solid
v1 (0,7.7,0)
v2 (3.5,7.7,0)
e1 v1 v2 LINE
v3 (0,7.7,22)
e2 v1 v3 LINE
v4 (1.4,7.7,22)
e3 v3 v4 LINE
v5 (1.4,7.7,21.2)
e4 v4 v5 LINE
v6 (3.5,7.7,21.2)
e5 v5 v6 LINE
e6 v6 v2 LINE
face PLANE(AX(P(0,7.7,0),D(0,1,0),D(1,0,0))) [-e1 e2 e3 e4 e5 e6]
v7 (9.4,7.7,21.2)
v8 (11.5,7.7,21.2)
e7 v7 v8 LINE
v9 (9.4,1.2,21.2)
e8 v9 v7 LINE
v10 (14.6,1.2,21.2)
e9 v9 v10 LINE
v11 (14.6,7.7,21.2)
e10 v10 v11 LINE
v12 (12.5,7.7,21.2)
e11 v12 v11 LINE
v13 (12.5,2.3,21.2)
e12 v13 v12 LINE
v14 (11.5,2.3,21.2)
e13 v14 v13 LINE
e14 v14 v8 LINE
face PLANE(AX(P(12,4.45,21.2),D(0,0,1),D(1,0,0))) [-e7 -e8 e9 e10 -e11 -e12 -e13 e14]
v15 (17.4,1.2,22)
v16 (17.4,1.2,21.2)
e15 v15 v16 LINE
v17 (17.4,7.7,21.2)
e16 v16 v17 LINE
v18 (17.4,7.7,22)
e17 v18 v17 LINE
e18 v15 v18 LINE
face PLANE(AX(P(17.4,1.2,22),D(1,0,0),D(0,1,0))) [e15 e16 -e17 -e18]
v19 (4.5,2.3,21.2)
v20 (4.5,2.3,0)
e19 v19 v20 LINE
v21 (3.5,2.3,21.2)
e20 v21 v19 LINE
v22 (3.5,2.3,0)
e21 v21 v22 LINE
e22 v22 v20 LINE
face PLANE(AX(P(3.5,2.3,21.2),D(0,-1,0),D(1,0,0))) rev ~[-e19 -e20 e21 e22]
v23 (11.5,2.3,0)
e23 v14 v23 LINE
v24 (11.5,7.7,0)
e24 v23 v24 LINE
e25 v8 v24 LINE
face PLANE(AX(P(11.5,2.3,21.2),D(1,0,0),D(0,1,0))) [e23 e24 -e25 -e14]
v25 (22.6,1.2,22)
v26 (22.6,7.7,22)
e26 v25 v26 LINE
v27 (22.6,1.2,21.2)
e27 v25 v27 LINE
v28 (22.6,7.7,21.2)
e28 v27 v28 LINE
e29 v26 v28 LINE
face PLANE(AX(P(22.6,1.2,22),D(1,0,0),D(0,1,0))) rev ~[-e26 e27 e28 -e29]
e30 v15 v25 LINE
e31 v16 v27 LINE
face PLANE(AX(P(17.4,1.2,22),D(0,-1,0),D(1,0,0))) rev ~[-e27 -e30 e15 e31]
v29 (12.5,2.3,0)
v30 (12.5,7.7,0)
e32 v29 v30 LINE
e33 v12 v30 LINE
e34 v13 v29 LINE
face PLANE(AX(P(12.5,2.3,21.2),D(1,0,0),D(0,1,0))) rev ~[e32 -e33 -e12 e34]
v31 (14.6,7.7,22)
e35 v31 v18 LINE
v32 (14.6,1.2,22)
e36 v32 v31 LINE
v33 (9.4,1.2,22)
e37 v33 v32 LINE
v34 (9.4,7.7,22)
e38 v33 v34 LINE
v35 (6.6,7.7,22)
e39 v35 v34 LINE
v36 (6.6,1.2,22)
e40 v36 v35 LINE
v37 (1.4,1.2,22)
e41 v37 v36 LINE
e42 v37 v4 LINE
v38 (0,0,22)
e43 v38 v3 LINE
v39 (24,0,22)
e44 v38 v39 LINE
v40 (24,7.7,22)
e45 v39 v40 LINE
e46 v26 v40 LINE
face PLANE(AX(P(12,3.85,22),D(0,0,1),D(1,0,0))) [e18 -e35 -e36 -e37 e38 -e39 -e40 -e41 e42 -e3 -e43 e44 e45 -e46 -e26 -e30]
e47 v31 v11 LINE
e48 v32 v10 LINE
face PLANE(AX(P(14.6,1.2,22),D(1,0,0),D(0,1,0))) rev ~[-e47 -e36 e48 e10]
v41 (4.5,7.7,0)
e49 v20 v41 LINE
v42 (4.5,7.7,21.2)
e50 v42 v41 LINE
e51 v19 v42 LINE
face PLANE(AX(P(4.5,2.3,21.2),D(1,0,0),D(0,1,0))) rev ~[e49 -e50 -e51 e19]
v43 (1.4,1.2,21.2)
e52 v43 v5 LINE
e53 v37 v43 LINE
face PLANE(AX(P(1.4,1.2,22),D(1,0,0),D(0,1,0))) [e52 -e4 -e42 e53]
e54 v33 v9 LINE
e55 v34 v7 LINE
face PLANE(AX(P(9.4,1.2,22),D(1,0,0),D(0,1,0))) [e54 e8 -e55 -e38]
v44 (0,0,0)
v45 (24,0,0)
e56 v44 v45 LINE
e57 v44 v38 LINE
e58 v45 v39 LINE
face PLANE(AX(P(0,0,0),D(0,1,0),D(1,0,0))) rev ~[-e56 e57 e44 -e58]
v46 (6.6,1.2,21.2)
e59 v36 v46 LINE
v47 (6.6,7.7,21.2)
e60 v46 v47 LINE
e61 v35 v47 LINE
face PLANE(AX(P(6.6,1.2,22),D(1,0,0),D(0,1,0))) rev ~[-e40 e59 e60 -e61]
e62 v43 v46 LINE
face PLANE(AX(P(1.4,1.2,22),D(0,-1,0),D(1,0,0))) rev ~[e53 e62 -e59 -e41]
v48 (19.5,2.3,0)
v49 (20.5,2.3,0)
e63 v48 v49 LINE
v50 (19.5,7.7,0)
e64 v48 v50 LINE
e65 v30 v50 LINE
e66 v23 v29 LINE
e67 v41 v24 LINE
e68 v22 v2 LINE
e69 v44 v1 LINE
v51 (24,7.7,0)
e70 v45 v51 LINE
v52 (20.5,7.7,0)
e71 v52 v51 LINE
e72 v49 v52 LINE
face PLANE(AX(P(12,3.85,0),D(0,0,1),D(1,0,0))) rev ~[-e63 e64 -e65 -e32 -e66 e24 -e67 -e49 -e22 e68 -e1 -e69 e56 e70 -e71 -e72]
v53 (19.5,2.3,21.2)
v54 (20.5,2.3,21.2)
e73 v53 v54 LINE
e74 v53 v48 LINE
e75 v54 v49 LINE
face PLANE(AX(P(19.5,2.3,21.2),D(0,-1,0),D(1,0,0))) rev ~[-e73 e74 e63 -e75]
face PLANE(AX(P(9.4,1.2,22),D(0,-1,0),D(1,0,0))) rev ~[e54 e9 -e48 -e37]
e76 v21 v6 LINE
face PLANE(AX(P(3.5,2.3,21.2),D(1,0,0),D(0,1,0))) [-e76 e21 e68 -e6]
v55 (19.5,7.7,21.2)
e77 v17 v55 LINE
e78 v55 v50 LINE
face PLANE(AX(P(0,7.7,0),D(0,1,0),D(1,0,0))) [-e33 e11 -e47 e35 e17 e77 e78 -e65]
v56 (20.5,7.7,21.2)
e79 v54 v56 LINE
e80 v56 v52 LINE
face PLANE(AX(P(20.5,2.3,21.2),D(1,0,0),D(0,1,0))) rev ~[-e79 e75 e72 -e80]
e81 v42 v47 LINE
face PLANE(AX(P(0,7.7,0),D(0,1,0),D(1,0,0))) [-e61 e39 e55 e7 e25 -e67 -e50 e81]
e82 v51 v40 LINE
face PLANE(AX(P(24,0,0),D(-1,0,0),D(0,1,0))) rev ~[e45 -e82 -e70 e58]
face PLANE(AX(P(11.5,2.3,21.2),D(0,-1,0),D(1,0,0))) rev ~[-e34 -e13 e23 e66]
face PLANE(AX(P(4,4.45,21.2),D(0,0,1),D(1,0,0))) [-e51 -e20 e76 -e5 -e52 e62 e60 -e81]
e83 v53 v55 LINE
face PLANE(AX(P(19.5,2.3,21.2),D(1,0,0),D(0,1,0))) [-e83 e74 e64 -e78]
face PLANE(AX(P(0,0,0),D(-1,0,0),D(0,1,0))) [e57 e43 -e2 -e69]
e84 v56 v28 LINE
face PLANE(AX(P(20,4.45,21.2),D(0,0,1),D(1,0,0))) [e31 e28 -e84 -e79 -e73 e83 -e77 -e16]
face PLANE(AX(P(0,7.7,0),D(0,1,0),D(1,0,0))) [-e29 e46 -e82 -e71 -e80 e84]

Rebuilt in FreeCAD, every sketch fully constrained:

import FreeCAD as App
import Part
import Sketcher

V = App.Vector
Q = App.Units.Quantity


def add_polygon(sketch, points):
    """Adds a closed chain of lines whose ends are joined by coincident constraints."""
    first, n = sketch.GeometryCount, len(points)
    for a, b in zip(points, points[1:] + points[:1]):
        sketch.addGeometry(Part.LineSegment(App.Vector(*a, 0), App.Vector(*b, 0)), False)
    for i in range(n):
        sketch.addConstraint(Sketcher.Constraint("Coincident", first + i, 2, first + (i + 1) % n, 1))

doc = App.newDocument("Part")
body = doc.addObject("PartDesign::Body", "Body")

sketch1 = doc.addObject("Sketcher::SketchObject", "Sketch")
body.addObject(sketch1)
sketch1.AttachmentSupport = (doc.XY_Plane, [""])
sketch1.MapMode = "FlatFace"
add_polygon(sketch1, [(0, 8), (0, 0), (24, 0), (24, 8)])
sketch1.addConstraint([
    Sketcher.Constraint("Vertical", 0),
    Sketcher.Constraint("Horizontal", 1),
    Sketcher.Constraint("Vertical", 2),
    Sketcher.Constraint("Horizontal", 3),
    Sketcher.Constraint("Coincident", 0, 2, -1, 1),
    Sketcher.Constraint("DistanceX", 1, 1, 1, 2, Q("24 mm")),
    Sketcher.Constraint("DistanceY", 0, 2, 0, 1, Q("7.7 mm")),
])
pad1 = doc.addObject("PartDesign::Pad", "Pad")
body.addObject(pad1)
pad1.Profile = sketch1
pad1.Length = 22

sketch2 = doc.addObject("Sketcher::SketchObject", "Sketch001")
body.addObject(sketch2)
sketch2.AttachmentSupport = (doc.XY_Plane, [""])
sketch2.MapMode = "FlatFace"
sketch2.AttachmentOffset = App.Placement(V(0, 0, 22), App.Rotation())
add_polygon(sketch2, [(1, 8), (1, 1), (7, 1), (7, 8)])
sketch2.addConstraint([
    Sketcher.Constraint("Vertical", 0),
    Sketcher.Constraint("Horizontal", 1),
    Sketcher.Constraint("Vertical", 2),
    Sketcher.Constraint("Horizontal", 3),
    Sketcher.Constraint("DistanceX", 1, 1, 1, 2, Q("5.2 mm")),
    Sketcher.Constraint("DistanceY", 0, 2, 0, 1, Q("6.5 mm")),
    Sketcher.Constraint("DistanceX", -1, 1, 0, 2, Q("1.4 mm")),
    Sketcher.Constraint("DistanceY", -1, 1, 0, 2, Q("1.2 mm")),
])
pocket1 = doc.addObject("PartDesign::Pocket", "Pocket")
body.addObject(pocket1)
pocket1.Profile = sketch2
pocket1.Length = 0.8
doc.recompute()

linearpattern = doc.addObject("PartDesign::LinearPattern", "LinearPattern")
body.addObject(linearpattern)
linearpattern.Originals = [pocket1]
linearpattern.Direction = (doc.X_Axis, [""])
linearpattern.Mode = "offset"
linearpattern.Offset = 8
linearpattern.Occurrences = 3
body.Tip = linearpattern

sketch3 = doc.addObject("Sketcher::SketchObject", "Sketch002")
body.addObject(sketch3)
sketch3.AttachmentSupport = (doc.XY_Plane, [""])
sketch3.MapMode = "FlatFace"
sketch3.AttachmentOffset = App.Placement(V(0, 0, 21.2), App.Rotation())
add_polygon(sketch3, [(3.5, 7.7), (3.5, 2.3), (4.5, 2.3), (4.5, 7.7)])
sketch3.addConstraint([
    Sketcher.Constraint("Vertical", 0),
    Sketcher.Constraint("Horizontal", 1),
    Sketcher.Constraint("Vertical", 2),
    Sketcher.Constraint("Horizontal", 3),
    Sketcher.Constraint("DistanceX", 1, 1, 1, 2, Q("1 mm")),
    Sketcher.Constraint("DistanceY", 0, 2, 0, 1, Q("5.4 mm")),
    Sketcher.Constraint("DistanceX", -1, 1, 0, 2, Q("3.5 mm")),
    Sketcher.Constraint("DistanceY", -1, 1, 0, 2, Q("2.3 mm")),
])
pocket2 = doc.addObject("PartDesign::Pocket", "Pocket001")
body.addObject(pocket2)
pocket2.Profile = sketch3
pocket2.Length = 22
doc.recompute()

linearpattern2 = doc.addObject("PartDesign::LinearPattern", "LinearPattern001")
body.addObject(linearpattern2)
linearpattern2.Originals = [pocket2]
linearpattern2.Direction = (doc.X_Axis, [""])
linearpattern2.Mode = "offset"
linearpattern2.Offset = 8
linearpattern2.Occurrences = 3
body.Tip = linearpattern2

doc.recompute()
